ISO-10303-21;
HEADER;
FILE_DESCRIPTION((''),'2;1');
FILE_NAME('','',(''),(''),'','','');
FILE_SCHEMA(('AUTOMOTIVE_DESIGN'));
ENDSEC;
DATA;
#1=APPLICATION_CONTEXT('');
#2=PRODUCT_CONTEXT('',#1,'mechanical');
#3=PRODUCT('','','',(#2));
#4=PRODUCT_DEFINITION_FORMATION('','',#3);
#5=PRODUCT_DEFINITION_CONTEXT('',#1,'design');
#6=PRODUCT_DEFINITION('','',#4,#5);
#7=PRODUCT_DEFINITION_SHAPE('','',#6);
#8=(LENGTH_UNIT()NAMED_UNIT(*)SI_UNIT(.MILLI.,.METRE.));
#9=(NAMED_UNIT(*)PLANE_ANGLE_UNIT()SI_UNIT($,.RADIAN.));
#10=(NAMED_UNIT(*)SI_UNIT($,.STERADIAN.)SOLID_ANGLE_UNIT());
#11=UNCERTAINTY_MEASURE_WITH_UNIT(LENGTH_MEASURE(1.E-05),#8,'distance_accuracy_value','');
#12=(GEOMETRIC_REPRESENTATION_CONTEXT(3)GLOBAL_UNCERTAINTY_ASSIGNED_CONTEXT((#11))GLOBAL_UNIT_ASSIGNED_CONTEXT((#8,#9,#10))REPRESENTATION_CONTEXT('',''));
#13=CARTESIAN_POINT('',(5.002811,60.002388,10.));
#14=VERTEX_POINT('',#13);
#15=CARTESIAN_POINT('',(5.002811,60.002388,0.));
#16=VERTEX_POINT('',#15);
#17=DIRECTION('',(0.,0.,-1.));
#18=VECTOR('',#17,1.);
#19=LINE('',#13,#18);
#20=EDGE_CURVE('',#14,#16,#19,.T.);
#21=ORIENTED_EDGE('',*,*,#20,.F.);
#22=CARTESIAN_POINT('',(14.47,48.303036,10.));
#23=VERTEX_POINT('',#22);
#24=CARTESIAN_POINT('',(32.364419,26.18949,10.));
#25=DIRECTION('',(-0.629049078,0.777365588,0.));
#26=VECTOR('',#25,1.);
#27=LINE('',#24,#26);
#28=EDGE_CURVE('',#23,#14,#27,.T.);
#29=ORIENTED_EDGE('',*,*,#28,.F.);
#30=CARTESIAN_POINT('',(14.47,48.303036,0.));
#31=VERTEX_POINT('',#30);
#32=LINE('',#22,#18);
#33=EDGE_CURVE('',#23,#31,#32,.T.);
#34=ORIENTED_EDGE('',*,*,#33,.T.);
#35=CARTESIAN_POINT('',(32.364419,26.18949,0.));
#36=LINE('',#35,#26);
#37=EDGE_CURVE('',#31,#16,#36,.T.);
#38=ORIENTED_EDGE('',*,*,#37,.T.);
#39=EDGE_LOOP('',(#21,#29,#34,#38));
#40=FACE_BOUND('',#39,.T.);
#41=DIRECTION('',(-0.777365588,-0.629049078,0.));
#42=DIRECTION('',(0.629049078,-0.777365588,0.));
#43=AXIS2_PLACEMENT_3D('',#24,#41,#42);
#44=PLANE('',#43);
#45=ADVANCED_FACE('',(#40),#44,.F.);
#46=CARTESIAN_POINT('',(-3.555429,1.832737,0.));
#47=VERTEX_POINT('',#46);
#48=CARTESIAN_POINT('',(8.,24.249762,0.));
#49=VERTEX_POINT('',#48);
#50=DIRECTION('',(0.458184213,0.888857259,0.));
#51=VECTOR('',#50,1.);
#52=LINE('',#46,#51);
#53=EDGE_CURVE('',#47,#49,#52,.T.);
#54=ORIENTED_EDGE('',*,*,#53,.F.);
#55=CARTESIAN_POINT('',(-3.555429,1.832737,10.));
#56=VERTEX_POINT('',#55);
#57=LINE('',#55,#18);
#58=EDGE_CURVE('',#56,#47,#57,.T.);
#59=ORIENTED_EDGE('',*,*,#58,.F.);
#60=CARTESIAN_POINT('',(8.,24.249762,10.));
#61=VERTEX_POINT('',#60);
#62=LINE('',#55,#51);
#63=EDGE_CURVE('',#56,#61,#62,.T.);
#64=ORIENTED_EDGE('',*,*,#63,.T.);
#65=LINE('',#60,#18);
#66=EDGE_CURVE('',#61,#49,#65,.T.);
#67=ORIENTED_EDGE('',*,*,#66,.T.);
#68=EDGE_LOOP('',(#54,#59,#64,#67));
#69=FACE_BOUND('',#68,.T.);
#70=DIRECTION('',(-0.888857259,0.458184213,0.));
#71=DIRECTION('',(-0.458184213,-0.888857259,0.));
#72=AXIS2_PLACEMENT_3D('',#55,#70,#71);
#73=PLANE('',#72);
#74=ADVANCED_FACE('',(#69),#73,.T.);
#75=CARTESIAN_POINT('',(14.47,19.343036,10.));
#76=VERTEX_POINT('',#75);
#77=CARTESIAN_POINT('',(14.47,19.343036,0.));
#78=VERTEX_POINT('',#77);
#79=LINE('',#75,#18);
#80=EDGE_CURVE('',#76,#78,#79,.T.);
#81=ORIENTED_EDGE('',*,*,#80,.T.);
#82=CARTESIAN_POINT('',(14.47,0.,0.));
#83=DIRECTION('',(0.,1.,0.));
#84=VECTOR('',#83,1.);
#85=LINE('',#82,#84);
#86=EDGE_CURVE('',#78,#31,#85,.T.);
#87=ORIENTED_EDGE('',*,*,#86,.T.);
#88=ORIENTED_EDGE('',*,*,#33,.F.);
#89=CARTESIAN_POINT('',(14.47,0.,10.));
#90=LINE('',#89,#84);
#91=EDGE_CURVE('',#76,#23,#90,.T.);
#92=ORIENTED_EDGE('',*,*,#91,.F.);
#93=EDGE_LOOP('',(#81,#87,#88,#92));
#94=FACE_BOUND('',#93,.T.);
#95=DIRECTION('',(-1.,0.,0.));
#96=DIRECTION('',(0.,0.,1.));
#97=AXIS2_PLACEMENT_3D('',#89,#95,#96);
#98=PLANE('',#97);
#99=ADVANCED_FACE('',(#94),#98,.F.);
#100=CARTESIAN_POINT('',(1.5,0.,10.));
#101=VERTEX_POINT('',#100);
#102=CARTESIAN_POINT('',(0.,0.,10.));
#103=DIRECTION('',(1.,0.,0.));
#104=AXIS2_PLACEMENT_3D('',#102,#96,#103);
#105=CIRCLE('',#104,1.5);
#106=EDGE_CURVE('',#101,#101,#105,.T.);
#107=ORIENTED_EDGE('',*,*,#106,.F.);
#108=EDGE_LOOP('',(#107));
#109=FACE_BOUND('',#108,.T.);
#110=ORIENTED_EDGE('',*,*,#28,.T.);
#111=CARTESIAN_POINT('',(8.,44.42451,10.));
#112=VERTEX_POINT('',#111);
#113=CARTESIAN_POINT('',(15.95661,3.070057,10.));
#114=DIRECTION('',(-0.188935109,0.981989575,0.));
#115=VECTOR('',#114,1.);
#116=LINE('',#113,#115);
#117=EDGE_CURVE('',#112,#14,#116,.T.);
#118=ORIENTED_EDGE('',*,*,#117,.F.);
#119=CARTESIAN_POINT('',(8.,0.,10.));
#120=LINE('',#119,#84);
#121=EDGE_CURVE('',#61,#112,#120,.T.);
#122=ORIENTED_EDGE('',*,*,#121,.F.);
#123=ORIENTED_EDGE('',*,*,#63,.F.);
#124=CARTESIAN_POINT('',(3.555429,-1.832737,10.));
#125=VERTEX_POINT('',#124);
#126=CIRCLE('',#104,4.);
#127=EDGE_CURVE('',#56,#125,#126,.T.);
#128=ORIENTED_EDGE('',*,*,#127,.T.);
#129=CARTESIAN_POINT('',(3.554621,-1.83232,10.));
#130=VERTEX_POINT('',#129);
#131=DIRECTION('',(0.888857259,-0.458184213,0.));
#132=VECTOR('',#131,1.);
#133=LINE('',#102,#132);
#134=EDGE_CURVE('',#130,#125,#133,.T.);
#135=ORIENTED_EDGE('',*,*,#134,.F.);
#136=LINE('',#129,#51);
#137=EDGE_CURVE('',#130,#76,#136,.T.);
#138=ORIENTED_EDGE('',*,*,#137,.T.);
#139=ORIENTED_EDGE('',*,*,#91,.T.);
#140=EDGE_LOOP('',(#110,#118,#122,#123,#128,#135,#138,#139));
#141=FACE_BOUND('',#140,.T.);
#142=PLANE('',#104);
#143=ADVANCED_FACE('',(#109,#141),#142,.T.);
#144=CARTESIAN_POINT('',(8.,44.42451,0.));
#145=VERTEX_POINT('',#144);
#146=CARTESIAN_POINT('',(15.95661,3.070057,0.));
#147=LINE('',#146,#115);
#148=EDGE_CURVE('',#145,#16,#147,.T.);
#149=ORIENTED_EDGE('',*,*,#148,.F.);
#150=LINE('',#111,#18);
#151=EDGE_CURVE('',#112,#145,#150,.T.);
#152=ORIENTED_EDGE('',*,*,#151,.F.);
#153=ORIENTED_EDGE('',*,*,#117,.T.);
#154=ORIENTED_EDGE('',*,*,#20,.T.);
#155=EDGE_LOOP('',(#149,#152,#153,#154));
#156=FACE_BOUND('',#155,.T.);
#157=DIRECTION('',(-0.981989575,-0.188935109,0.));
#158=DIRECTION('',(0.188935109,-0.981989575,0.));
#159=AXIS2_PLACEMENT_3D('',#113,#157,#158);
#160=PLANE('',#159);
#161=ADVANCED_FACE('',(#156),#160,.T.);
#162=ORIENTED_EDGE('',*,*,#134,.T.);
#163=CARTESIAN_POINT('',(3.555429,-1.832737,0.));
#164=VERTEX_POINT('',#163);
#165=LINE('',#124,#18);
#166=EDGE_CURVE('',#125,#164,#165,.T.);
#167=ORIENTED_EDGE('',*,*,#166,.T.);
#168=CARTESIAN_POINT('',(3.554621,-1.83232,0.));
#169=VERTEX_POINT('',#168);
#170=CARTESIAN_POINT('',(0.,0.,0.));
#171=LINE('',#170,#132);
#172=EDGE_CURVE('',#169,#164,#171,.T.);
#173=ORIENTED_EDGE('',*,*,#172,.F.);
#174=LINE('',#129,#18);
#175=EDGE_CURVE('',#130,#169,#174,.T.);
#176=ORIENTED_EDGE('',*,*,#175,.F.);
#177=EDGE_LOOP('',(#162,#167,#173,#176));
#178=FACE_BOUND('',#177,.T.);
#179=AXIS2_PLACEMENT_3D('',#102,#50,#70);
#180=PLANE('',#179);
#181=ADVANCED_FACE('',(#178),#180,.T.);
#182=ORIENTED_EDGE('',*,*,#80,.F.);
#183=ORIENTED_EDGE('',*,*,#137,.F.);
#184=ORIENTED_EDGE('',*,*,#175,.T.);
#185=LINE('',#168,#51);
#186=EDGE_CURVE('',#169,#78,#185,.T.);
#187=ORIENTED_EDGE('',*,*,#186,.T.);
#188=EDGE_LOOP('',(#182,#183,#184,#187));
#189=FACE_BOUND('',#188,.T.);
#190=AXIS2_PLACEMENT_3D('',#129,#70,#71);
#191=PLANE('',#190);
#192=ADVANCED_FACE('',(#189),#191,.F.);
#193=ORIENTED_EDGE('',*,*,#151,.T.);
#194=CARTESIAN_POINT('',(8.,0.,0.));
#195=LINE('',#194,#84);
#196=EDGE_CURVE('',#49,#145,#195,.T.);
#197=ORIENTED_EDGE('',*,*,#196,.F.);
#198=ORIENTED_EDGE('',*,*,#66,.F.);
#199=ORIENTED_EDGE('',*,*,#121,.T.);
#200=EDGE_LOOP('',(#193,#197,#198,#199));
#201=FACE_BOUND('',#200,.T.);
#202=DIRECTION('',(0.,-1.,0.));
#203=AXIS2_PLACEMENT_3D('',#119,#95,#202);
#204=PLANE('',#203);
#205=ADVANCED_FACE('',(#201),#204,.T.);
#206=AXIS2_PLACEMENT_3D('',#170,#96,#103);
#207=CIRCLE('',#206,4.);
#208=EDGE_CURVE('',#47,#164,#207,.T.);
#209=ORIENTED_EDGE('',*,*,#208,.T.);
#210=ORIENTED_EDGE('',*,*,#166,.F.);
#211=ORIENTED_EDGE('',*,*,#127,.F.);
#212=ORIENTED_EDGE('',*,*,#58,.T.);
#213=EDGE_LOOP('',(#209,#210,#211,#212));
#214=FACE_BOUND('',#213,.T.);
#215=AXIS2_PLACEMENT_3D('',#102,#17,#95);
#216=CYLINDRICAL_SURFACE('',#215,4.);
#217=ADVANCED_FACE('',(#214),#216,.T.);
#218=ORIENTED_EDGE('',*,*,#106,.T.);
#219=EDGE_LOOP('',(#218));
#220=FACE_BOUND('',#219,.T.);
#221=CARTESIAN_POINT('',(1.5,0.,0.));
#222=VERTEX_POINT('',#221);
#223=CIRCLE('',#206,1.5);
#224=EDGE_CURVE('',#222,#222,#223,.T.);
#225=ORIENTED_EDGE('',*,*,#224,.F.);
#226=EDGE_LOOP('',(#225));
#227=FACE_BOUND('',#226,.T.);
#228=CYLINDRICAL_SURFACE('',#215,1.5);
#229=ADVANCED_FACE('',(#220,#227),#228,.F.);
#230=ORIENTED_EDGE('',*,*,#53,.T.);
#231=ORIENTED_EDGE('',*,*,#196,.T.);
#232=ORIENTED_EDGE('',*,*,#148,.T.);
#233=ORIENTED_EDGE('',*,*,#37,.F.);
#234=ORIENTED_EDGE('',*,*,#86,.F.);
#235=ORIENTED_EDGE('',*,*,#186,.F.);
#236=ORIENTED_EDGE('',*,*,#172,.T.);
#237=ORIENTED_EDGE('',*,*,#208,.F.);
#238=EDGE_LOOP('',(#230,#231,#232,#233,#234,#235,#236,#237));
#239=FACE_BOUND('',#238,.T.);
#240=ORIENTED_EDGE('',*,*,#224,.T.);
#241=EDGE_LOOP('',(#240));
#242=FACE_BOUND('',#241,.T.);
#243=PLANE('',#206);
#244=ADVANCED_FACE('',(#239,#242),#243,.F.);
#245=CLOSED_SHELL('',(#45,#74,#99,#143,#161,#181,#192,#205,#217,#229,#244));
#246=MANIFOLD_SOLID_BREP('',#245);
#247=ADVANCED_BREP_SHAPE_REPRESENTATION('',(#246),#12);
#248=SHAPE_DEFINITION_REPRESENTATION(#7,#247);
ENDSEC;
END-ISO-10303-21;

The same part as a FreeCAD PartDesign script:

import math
import FreeCAD as App
import Part
import Sketcher

V = App.Vector
Q = App.Units.Quantity

doc = App.newDocument("Part")
body = doc.addObject("PartDesign::Body", "Body")

# Sketch on XY plane
sketch1 = doc.addObject("Sketcher::SketchObject", "Sketch")
body.addObject(sketch1)
sketch1.AttachmentSupport = (doc.XY_Plane, [""])
sketch1.MapMode = "FlatFace"
sketch1.addGeometry([
    Part.LineSegment(V(8, 44.4245, 0), V(8, 24.2498, 0)),  # 0
    Part.LineSegment(V(8, 24.2498, 0), V(-3.5554, 1.8327, 0)),  # 1
    Part.ArcOfCircle(Part.Circle(V(0, 0, 0), V(0, 0, 1), 4), math.radians(153), math.radians(333)),  # 2
    Part.LineSegment(V(3.5554, -1.8327, 0), V(3.5546, -1.8323, 0)),  # 3
    Part.LineSegment(V(3.5546, -1.8323, 0), V(3.5937, -1.7565, 0)),  # 4
    Part.LineSegment(V(3.5937, -1.7565, 0), V(14.47, 19.343, 0)),  # 5
    Part.LineSegment(V(14.47, 19.343, 0), V(14.47, 48.303, 0)),  # 6
    Part.LineSegment(V(14.47, 48.303, 0), V(5.0028, 60.0024, 0)),  # 7
    Part.LineSegment(V(5.0028, 60.0024, 0), V(8, 44.4245, 0)),  # 8
    Part.Circle(V(0, 0, 0), V(0, 0, 1), 1.5),  # 9
], False)
sketch1.addConstraint([
    Sketcher.Constraint("Coincident", 0, 2, 1, 1),
    Sketcher.Constraint("Tangent", 1, 2, 2, 1),
    Sketcher.Constraint("Coincident", 2, 2, 3, 1),
    Sketcher.Constraint("Coincident", 3, 2, 4, 1),
    Sketcher.Constraint("Coincident", 4, 2, 5, 1),
    Sketcher.Constraint("Coincident", 5, 2, 6, 1),
    Sketcher.Constraint("Coincident", 6, 2, 7, 1),
    Sketcher.Constraint("Coincident", 7, 2, 8, 1),
    Sketcher.Constraint("Coincident", 8, 2, 0, 1),
    Sketcher.Constraint("Vertical", 0),
    Sketcher.Constraint("Vertical", 6),
    Sketcher.Constraint("Coincident", 2, 3, -1, 1),
    Sketcher.Constraint("Coincident", 9, 3, -1, 1),
    Sketcher.Constraint("Perpendicular", 1, 3),
    Sketcher.Constraint("Perpendicular", 3, 4),
    Sketcher.Constraint("Parallel", 4, 5),
    Sketcher.Constraint("Diameter", 9, Q("3 mm")),
    Sketcher.Constraint("Radius", 2, Q("4 mm")),
    Sketcher.Constraint("DistanceX", -1, 1, 0, 2, Q("8 mm")),
    Sketcher.Constraint("DistanceY", 6, 1, 6, 2, Q("28.96 mm")),
    Sketcher.Constraint("Angle", 1, Q("-117.27 deg")),
    Sketcher.Constraint("Angle", 7, Q("128.98 deg")),
    Sketcher.Constraint("Distance", 7, Q("15.05 mm")),
    Sketcher.Constraint("DistanceX", -1, 1, 5, 2, Q("14.47 mm")),
    Sketcher.Constraint("DistanceY", 0, 2, 0, 1, Q("20.174748 mm")),
    Sketcher.Constraint("DistanceY", 2, 2, 0, 2, Q("26.082499 mm")),
    Sketcher.Constraint("DistanceY", 1, 2, 6, 2, Q("46.470299 mm")),
    Sketcher.Constraint("Distance", 5, Q("23.73785 mm")),
])
pad1 = doc.addObject("PartDesign::Pad", "Pad")
body.addObject(pad1)
pad1.Profile = sketch1
pad1.Length = 10

doc.recompute()
